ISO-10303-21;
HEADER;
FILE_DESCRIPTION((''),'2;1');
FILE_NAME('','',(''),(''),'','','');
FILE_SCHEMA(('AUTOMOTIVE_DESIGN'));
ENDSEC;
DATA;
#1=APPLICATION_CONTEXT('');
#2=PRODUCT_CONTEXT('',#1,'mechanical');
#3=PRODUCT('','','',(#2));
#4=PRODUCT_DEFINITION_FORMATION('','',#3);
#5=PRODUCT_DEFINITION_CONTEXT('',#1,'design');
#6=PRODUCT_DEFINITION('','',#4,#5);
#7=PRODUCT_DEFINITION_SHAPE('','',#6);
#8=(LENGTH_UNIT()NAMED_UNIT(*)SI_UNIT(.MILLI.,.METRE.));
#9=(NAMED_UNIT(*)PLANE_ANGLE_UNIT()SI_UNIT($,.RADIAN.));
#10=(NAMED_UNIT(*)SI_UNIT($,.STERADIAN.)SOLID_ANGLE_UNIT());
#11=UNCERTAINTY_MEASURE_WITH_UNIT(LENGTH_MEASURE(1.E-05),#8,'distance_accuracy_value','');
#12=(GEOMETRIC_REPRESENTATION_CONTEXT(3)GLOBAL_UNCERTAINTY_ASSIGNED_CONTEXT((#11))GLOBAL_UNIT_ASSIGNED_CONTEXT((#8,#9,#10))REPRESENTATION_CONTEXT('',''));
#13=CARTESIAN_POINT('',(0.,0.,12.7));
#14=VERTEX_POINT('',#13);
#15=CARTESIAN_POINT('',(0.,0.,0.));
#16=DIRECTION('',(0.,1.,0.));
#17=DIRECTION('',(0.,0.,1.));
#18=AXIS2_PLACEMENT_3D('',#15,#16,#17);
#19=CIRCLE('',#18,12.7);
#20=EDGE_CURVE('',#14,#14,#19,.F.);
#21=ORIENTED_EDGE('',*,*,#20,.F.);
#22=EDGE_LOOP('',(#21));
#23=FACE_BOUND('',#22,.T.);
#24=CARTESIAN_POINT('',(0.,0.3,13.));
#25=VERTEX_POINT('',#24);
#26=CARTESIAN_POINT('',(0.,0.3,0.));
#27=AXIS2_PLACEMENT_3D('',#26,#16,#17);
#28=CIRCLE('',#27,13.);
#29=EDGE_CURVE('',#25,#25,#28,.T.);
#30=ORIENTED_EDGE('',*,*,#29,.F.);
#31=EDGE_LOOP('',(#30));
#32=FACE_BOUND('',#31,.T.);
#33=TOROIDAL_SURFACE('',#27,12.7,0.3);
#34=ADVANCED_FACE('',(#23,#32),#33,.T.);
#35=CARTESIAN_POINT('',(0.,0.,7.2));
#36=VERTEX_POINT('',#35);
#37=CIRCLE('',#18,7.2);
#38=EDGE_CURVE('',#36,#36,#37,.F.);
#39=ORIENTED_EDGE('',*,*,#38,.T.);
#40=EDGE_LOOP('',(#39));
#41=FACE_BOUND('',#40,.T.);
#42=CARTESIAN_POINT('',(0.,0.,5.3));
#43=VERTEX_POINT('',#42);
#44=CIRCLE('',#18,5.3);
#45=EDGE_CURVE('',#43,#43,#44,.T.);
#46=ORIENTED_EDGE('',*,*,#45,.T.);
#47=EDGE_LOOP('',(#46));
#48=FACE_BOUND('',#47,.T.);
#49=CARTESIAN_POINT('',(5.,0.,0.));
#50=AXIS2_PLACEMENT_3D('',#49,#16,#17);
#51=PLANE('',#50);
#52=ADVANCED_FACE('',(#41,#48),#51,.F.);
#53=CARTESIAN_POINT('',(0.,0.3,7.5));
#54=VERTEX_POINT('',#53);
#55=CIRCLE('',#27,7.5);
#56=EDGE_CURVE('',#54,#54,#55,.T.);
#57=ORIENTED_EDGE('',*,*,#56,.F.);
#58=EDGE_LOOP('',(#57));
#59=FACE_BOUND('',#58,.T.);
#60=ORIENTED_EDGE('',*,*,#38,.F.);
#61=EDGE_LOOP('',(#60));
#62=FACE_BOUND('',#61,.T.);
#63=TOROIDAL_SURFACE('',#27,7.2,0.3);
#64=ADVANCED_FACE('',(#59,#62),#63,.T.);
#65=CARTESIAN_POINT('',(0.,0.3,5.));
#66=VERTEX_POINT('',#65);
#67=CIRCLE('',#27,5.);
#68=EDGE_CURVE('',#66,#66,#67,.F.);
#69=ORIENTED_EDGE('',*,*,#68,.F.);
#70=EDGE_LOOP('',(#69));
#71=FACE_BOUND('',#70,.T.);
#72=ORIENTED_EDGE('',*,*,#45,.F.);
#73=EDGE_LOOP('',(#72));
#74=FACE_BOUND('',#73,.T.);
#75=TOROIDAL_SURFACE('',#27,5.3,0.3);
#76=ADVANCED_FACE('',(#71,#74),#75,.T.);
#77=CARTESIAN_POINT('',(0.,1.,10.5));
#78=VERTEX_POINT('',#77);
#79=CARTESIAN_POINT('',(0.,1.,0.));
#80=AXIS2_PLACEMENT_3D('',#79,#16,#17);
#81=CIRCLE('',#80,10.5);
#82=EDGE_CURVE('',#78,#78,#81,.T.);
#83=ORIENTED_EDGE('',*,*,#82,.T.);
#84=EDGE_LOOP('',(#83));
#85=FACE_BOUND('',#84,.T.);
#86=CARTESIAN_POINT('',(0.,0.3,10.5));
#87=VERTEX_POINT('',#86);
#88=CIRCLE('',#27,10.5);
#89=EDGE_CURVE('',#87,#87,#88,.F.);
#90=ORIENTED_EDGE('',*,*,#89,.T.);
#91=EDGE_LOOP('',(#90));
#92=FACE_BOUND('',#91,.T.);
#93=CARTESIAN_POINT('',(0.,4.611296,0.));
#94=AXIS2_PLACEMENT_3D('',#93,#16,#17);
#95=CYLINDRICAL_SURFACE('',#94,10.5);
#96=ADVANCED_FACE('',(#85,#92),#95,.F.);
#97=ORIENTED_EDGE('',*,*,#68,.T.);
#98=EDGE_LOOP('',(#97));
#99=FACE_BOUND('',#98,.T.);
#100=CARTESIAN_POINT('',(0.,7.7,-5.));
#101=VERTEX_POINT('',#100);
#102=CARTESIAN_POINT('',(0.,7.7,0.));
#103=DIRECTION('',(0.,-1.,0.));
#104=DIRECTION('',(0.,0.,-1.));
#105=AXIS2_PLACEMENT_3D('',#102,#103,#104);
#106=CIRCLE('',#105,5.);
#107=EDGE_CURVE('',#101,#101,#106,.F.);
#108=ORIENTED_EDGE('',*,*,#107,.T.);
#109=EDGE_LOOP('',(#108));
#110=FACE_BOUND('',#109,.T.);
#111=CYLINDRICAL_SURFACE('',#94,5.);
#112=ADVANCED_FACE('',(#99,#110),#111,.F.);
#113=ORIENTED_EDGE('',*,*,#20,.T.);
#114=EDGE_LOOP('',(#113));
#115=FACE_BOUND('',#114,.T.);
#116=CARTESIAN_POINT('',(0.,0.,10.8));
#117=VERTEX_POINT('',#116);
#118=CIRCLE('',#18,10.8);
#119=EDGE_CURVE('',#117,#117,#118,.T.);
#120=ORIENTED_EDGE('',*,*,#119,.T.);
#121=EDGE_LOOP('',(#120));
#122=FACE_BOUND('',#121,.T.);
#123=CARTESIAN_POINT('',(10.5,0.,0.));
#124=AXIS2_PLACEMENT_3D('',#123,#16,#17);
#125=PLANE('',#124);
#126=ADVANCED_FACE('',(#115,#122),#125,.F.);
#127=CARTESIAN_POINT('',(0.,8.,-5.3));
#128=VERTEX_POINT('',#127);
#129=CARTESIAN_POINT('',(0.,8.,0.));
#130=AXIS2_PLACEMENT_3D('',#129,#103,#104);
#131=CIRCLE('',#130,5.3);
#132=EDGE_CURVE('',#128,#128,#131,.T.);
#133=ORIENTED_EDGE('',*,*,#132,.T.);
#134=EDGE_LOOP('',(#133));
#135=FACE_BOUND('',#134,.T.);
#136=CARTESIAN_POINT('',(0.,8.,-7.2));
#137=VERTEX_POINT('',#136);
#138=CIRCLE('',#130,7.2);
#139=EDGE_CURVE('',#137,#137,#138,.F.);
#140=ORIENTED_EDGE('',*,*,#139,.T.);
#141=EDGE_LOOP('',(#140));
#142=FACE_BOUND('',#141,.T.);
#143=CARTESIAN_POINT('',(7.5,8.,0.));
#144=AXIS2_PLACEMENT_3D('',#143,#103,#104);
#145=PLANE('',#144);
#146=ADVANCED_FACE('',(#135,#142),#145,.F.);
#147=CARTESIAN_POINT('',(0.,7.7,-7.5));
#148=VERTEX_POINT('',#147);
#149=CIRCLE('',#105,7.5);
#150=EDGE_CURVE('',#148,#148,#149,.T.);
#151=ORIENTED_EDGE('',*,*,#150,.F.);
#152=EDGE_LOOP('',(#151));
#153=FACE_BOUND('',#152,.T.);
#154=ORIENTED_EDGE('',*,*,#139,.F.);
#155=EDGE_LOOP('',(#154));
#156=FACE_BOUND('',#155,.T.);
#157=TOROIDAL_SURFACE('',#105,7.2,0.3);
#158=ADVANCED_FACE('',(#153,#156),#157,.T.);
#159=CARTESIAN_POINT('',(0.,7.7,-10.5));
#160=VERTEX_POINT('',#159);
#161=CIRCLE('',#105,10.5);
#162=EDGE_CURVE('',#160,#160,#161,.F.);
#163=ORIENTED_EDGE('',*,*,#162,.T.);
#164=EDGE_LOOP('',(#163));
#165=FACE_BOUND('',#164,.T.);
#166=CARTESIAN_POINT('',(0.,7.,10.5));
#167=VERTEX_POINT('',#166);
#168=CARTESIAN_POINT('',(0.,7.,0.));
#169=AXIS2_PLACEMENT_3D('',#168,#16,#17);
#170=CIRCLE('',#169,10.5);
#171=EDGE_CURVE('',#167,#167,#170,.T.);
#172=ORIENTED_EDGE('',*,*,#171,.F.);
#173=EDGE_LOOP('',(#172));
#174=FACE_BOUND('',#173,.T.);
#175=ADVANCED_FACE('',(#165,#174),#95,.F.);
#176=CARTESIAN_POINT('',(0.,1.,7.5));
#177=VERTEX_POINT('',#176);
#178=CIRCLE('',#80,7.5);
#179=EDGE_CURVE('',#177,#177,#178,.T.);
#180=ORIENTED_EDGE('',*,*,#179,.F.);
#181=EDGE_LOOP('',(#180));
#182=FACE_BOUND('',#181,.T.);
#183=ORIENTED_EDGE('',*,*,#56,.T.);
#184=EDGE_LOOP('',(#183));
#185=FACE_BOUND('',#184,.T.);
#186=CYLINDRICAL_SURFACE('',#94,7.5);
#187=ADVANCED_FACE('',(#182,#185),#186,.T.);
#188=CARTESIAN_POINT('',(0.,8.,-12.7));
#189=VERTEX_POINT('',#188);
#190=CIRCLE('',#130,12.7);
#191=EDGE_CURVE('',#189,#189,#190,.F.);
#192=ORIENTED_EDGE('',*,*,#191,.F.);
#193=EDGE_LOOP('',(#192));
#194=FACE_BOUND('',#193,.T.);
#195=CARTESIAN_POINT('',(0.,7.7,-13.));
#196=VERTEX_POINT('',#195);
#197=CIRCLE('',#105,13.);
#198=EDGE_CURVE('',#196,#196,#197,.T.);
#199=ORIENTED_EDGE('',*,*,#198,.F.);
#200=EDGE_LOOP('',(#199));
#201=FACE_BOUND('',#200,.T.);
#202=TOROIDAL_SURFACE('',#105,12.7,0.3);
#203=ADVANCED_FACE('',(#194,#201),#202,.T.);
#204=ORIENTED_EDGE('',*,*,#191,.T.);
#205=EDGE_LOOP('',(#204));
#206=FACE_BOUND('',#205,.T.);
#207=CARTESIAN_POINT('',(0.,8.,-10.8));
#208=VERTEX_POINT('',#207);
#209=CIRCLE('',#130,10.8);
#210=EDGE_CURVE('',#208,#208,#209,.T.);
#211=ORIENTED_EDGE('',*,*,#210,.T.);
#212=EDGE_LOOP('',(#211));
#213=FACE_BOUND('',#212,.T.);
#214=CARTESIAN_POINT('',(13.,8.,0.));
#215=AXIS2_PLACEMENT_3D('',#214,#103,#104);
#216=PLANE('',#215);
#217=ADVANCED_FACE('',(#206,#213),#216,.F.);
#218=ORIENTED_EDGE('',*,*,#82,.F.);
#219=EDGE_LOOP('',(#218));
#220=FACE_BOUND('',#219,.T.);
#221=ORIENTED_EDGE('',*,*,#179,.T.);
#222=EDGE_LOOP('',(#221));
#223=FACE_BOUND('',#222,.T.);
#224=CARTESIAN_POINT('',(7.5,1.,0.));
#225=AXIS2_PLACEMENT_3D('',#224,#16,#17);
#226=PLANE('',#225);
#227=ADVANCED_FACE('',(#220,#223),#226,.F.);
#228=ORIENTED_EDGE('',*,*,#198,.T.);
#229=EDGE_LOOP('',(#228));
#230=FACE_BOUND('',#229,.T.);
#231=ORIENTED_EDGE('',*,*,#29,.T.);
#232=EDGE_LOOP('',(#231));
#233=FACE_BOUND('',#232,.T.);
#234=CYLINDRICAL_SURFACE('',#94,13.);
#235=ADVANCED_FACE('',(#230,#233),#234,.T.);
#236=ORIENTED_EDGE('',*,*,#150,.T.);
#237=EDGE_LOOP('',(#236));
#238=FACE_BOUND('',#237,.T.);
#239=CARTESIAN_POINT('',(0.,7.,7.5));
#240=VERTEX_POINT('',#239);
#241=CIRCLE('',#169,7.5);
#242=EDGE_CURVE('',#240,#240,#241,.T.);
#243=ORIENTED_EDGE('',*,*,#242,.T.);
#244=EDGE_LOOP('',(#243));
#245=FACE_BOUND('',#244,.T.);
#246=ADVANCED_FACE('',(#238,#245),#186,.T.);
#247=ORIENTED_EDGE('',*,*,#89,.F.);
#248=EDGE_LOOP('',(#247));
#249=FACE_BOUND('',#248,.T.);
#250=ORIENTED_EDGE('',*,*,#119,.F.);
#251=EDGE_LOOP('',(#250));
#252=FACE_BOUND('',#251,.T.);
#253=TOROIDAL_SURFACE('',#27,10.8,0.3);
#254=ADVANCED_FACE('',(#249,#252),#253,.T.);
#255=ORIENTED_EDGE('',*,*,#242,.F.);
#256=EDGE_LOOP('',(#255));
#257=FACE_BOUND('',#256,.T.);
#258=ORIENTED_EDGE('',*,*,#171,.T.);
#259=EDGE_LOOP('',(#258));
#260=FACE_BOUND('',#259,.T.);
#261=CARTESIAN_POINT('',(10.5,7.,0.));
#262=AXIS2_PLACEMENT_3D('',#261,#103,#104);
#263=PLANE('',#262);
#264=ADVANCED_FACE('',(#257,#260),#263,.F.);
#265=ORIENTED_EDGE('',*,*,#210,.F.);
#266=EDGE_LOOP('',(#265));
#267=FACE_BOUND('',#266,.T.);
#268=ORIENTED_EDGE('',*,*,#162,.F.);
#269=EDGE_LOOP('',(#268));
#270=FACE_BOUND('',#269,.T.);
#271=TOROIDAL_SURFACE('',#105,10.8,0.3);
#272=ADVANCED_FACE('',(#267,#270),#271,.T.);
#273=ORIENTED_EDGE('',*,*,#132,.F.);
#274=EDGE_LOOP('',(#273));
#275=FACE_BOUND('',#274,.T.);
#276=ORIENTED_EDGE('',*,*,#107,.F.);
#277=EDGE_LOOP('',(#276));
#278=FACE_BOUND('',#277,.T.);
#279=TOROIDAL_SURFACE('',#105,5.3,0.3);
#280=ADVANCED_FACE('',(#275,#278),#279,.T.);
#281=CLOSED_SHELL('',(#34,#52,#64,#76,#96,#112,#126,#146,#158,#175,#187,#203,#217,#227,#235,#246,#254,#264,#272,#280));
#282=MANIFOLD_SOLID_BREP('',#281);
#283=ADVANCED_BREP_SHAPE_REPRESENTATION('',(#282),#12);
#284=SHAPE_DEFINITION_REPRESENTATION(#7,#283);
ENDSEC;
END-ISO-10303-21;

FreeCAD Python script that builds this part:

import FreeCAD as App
import Part
import Sketcher

V = App.Vector


def edges_at(feature, points):
    """Names of the edges that pass closest to the given points."""
    edges = feature.Shape.Edges
    near = lambda p: min(range(len(edges)), key=lambda i: edges[i].distToShape(Part.Vertex(*p))[0])
    return sorted({f"Edge{near(p) + 1}" for p in points})

doc = App.newDocument("Part")
body = doc.addObject("PartDesign::Body", "Body")

sketch1 = body.newObject("Sketcher::SketchObject", "Sketch")
sketch1.AttachmentSupport = (doc.getObject("XY_Plane"), [""])
sketch1.MapMode = "FlatFace"
sketch1.addGeometry(Part.LineSegment(V(5, 8, 0), V(5, 0, 0)), False)
sketch1.addGeometry(Part.LineSegment(V(5, 0, 0), V(7.5, 0, 0)), False)
sketch1.addGeometry(Part.LineSegment(V(7.5, 0, 0), V(7.5, 1, 0)), False)
sketch1.addGeometry(Part.LineSegment(V(7.5, 1, 0), V(10.5, 1, 0)), False)
sketch1.addGeometry(Part.LineSegment(V(10.5, 1, 0), V(10.5, 0, 0)), False)
sketch1.addGeometry(Part.LineSegment(V(10.5, 0, 0), V(13, 0, 0)), False)
sketch1.addGeometry(Part.LineSegment(V(13, 0, 0), V(13, 8, 0)), False)
sketch1.addGeometry(Part.LineSegment(V(13, 8, 0), V(10.5, 8, 0)), False)
sketch1.addGeometry(Part.LineSegment(V(10.5, 8, 0), V(10.5, 7, 0)), False)
sketch1.addGeometry(Part.LineSegment(V(10.5, 7, 0), V(7.5, 7, 0)), False)
sketch1.addGeometry(Part.LineSegment(V(7.5, 7, 0), V(7.5, 8, 0)), False)
sketch1.addGeometry(Part.LineSegment(V(7.5, 8, 0), V(5, 8, 0)), False)
sketch1.addConstraint(Sketcher.Constraint("Coincident", 0, 2, 1, 1))
sketch1.addConstraint(Sketcher.Constraint("Coincident", 1, 2, 2, 1))
sketch1.addConstraint(Sketcher.Constraint("Coincident", 2, 2, 3, 1))
sketch1.addConstraint(Sketcher.Constraint("Coincident", 3, 2, 4, 1))
sketch1.addConstraint(Sketcher.Constraint("Coincident", 4, 2, 5, 1))
sketch1.addConstraint(Sketcher.Constraint("Coincident", 5, 2, 6, 1))
sketch1.addConstraint(Sketcher.Constraint("Coincident", 6, 2, 7, 1))
sketch1.addConstraint(Sketcher.Constraint("Coincident", 7, 2, 8, 1))
sketch1.addConstraint(Sketcher.Constraint("Coincident", 8, 2, 9, 1))
sketch1.addConstraint(Sketcher.Constraint("Coincident", 9, 2, 10, 1))
sketch1.addConstraint(Sketcher.Constraint("Coincident", 10, 2, 11, 1))
sketch1.addConstraint(Sketcher.Constraint("Coincident", 11, 2, 0, 1))
sketch1.addConstraint(Sketcher.Constraint("Vertical", 0))
sketch1.addConstraint(Sketcher.Constraint("Horizontal", 1))
sketch1.addConstraint(Sketcher.Constraint("Vertical", 2))
sketch1.addConstraint(Sketcher.Constraint("Horizontal", 3))
sketch1.addConstraint(Sketcher.Constraint("Vertical", 4))
sketch1.addConstraint(Sketcher.Constraint("Horizontal", 5))
sketch1.addConstraint(Sketcher.Constraint("Vertical", 6))
sketch1.addConstraint(Sketcher.Constraint("Horizontal", 7))
sketch1.addConstraint(Sketcher.Constraint("Vertical", 8))
sketch1.addConstraint(Sketcher.Constraint("Horizontal", 9))
sketch1.addConstraint(Sketcher.Constraint("Vertical", 10))
sketch1.addConstraint(Sketcher.Constraint("Horizontal", 11))
sketch1.addConstraint(Sketcher.Constraint("PointOnObject", 0, 2, -1))
sketch1.addConstraint(Sketcher.Constraint("PointOnObject", 4, 2, -1))
sketch1.addConstraint(Sketcher.Constraint("Horizontal", 7, 2, 10, 2))
sketch1.addConstraint(Sketcher.Constraint("Vertical", 4, 2, 7, 2))
sketch1.addConstraint(Sketcher.Constraint("Vertical", 2, 2, 9, 2))
sketch1.addConstraint(Sketcher.Constraint("Equal", 1, 5))
sketch1.addConstraint(Sketcher.Constraint("Equal", 4, 8))
sketch1.addConstraint(Sketcher.Constraint("DistanceX", 3, 1, 3, 2, 3.0))
sketch1.addConstraint(Sketcher.Constraint("DistanceY", 0, 2, 0, 1, 8.0))
sketch1.addConstraint(Sketcher.Constraint("DistanceY", 2, 1, 2, 2, 1.0))
sketch1.addConstraint(Sketcher.Constraint("DistanceX", 1, 1, 1, 2, 2.5))
sketch1.addConstraint(Sketcher.Constraint("DistanceX", -1, 1, 0, 2, 5.0))
revolution = body.newObject("PartDesign::Revolution", "Revolution")
revolution.Profile = sketch1
revolution.ReferenceAxis = (sketch1, ["V_Axis"])
revolution.Angle = 360
doc.recompute()

fillet = body.newObject("PartDesign::Fillet", "Fillet")
fillet.Base = (revolution, edges_at(revolution, [
    (0, 8, -10.5),
    (0, 8, -13),
    (0, 0, -13),
    (0, 0, -10.5),
    (0, 0, -7.5),
    (0, 0, -5),
    (0, 8, -5),
    (0, 8, -7.5),
]))
fillet.Radius = 0.3

doc.recompute()
